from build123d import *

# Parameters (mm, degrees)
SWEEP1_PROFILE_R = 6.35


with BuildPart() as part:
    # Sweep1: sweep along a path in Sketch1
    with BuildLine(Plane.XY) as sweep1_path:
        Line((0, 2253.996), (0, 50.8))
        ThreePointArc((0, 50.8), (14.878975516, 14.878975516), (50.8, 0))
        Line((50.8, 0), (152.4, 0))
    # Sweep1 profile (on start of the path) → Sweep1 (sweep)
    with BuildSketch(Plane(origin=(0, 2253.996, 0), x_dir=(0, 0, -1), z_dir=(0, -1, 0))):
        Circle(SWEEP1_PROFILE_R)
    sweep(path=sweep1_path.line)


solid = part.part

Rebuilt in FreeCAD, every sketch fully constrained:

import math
import FreeCAD as App
import Part
import Sketcher
Q = App.Units.Quantity

doc = App.newDocument("Part")
params = doc.addObject("Spreadsheet::Sheet", "Params")
for row, (alias, value) in enumerate([
    ("sketch1_diameter", "0.5 in"),
    ("sketch2_radius", "2 in"),
    ("sketch2_width", "4 in"),
    ("sketch2_height", "86.74 in"),
], start=1):
    params.set(f"A{row}", alias)
    params.set(f"B{row}", "=" + value)
    params.setAlias(f"B{row}", alias)

body = doc.addObject("PartDesign::Body", "Body")

# Sketch on XZ plane
sketch1 = body.newObject("Sketcher::SketchObject", "Sketch")
sketch1.AttachmentSupport = (doc.getObject("XZ_Plane"), [""])
sketch1.MapMode = "FlatFace"
sketch1.AttachmentOffset = App.Placement(App.Vector(0, 0, -88.74 * 25.4), App.Rotation())
sketch1.addGeometry(Part.Circle(App.Vector(0, 0, 0), App.Vector(0, 0, 1), 6), False)
sketch1.addConstraint([
    Sketcher.Constraint("Coincident", 0, 3, -1, 1),
    Sketcher.Constraint("Diameter", 0, Q("0.5 in")),
])
sketch1.setExpression("Constraints[1]", "Params.sketch1_diameter")

# Sketch on XY plane
sketch2 = body.newObject("Sketcher::SketchObject", "Sketch001")
sketch2.AttachmentSupport = (doc.getObject("XY_Plane"), [""])
sketch2.MapMode = "FlatFace"
sketch2.addGeometry([
    Part.LineSegment(App.Vector(0, 2254, 0), App.Vector(0, 51, 0)),
    Part.ArcOfCircle(Part.Circle(App.Vector(51, 51, 0), App.Vector(0, 0, 1), 51), math.radians(-180), math.radians(-90)),
    Part.LineSegment(App.Vector(51, 0, 0), App.Vector(152, 0, 0)),
], False)
sketch2.addConstraint([
    Sketcher.Constraint("Tangent", 0, 2, 1, 1),
    Sketcher.Constraint("Tangent", 1, 2, 2, 1),
    Sketcher.Constraint("Vertical", 0),
    Sketcher.Constraint("Horizontal", 2),
    Sketcher.Constraint("PointOnObject", 0, 1, -2),
    Sketcher.Constraint("PointOnObject", 1, 2, -1),
    Sketcher.Constraint("Radius", 1, Q("2 in")),
    Sketcher.Constraint("DistanceX", 2, 1, 2, 2, Q("4 in")),
    Sketcher.Constraint("DistanceY", 0, 2, 0, 1, Q("86.74 in")),
])
sketch2.setExpression("Constraints[6]", "Params.sketch2_radius")
sketch2.setExpression("Constraints[7]", "Params.sketch2_width")
sketch2.setExpression("Constraints[8]", "Params.sketch2_height")
doc.recompute()

additivepipe = body.newObject("PartDesign::AdditivePipe", "AdditivePipe")
additivepipe.Profile = sketch1
additivepipe.Spine = (sketch2, ["Edge1", "Edge2", "Edge3"])

doc.recompute()
